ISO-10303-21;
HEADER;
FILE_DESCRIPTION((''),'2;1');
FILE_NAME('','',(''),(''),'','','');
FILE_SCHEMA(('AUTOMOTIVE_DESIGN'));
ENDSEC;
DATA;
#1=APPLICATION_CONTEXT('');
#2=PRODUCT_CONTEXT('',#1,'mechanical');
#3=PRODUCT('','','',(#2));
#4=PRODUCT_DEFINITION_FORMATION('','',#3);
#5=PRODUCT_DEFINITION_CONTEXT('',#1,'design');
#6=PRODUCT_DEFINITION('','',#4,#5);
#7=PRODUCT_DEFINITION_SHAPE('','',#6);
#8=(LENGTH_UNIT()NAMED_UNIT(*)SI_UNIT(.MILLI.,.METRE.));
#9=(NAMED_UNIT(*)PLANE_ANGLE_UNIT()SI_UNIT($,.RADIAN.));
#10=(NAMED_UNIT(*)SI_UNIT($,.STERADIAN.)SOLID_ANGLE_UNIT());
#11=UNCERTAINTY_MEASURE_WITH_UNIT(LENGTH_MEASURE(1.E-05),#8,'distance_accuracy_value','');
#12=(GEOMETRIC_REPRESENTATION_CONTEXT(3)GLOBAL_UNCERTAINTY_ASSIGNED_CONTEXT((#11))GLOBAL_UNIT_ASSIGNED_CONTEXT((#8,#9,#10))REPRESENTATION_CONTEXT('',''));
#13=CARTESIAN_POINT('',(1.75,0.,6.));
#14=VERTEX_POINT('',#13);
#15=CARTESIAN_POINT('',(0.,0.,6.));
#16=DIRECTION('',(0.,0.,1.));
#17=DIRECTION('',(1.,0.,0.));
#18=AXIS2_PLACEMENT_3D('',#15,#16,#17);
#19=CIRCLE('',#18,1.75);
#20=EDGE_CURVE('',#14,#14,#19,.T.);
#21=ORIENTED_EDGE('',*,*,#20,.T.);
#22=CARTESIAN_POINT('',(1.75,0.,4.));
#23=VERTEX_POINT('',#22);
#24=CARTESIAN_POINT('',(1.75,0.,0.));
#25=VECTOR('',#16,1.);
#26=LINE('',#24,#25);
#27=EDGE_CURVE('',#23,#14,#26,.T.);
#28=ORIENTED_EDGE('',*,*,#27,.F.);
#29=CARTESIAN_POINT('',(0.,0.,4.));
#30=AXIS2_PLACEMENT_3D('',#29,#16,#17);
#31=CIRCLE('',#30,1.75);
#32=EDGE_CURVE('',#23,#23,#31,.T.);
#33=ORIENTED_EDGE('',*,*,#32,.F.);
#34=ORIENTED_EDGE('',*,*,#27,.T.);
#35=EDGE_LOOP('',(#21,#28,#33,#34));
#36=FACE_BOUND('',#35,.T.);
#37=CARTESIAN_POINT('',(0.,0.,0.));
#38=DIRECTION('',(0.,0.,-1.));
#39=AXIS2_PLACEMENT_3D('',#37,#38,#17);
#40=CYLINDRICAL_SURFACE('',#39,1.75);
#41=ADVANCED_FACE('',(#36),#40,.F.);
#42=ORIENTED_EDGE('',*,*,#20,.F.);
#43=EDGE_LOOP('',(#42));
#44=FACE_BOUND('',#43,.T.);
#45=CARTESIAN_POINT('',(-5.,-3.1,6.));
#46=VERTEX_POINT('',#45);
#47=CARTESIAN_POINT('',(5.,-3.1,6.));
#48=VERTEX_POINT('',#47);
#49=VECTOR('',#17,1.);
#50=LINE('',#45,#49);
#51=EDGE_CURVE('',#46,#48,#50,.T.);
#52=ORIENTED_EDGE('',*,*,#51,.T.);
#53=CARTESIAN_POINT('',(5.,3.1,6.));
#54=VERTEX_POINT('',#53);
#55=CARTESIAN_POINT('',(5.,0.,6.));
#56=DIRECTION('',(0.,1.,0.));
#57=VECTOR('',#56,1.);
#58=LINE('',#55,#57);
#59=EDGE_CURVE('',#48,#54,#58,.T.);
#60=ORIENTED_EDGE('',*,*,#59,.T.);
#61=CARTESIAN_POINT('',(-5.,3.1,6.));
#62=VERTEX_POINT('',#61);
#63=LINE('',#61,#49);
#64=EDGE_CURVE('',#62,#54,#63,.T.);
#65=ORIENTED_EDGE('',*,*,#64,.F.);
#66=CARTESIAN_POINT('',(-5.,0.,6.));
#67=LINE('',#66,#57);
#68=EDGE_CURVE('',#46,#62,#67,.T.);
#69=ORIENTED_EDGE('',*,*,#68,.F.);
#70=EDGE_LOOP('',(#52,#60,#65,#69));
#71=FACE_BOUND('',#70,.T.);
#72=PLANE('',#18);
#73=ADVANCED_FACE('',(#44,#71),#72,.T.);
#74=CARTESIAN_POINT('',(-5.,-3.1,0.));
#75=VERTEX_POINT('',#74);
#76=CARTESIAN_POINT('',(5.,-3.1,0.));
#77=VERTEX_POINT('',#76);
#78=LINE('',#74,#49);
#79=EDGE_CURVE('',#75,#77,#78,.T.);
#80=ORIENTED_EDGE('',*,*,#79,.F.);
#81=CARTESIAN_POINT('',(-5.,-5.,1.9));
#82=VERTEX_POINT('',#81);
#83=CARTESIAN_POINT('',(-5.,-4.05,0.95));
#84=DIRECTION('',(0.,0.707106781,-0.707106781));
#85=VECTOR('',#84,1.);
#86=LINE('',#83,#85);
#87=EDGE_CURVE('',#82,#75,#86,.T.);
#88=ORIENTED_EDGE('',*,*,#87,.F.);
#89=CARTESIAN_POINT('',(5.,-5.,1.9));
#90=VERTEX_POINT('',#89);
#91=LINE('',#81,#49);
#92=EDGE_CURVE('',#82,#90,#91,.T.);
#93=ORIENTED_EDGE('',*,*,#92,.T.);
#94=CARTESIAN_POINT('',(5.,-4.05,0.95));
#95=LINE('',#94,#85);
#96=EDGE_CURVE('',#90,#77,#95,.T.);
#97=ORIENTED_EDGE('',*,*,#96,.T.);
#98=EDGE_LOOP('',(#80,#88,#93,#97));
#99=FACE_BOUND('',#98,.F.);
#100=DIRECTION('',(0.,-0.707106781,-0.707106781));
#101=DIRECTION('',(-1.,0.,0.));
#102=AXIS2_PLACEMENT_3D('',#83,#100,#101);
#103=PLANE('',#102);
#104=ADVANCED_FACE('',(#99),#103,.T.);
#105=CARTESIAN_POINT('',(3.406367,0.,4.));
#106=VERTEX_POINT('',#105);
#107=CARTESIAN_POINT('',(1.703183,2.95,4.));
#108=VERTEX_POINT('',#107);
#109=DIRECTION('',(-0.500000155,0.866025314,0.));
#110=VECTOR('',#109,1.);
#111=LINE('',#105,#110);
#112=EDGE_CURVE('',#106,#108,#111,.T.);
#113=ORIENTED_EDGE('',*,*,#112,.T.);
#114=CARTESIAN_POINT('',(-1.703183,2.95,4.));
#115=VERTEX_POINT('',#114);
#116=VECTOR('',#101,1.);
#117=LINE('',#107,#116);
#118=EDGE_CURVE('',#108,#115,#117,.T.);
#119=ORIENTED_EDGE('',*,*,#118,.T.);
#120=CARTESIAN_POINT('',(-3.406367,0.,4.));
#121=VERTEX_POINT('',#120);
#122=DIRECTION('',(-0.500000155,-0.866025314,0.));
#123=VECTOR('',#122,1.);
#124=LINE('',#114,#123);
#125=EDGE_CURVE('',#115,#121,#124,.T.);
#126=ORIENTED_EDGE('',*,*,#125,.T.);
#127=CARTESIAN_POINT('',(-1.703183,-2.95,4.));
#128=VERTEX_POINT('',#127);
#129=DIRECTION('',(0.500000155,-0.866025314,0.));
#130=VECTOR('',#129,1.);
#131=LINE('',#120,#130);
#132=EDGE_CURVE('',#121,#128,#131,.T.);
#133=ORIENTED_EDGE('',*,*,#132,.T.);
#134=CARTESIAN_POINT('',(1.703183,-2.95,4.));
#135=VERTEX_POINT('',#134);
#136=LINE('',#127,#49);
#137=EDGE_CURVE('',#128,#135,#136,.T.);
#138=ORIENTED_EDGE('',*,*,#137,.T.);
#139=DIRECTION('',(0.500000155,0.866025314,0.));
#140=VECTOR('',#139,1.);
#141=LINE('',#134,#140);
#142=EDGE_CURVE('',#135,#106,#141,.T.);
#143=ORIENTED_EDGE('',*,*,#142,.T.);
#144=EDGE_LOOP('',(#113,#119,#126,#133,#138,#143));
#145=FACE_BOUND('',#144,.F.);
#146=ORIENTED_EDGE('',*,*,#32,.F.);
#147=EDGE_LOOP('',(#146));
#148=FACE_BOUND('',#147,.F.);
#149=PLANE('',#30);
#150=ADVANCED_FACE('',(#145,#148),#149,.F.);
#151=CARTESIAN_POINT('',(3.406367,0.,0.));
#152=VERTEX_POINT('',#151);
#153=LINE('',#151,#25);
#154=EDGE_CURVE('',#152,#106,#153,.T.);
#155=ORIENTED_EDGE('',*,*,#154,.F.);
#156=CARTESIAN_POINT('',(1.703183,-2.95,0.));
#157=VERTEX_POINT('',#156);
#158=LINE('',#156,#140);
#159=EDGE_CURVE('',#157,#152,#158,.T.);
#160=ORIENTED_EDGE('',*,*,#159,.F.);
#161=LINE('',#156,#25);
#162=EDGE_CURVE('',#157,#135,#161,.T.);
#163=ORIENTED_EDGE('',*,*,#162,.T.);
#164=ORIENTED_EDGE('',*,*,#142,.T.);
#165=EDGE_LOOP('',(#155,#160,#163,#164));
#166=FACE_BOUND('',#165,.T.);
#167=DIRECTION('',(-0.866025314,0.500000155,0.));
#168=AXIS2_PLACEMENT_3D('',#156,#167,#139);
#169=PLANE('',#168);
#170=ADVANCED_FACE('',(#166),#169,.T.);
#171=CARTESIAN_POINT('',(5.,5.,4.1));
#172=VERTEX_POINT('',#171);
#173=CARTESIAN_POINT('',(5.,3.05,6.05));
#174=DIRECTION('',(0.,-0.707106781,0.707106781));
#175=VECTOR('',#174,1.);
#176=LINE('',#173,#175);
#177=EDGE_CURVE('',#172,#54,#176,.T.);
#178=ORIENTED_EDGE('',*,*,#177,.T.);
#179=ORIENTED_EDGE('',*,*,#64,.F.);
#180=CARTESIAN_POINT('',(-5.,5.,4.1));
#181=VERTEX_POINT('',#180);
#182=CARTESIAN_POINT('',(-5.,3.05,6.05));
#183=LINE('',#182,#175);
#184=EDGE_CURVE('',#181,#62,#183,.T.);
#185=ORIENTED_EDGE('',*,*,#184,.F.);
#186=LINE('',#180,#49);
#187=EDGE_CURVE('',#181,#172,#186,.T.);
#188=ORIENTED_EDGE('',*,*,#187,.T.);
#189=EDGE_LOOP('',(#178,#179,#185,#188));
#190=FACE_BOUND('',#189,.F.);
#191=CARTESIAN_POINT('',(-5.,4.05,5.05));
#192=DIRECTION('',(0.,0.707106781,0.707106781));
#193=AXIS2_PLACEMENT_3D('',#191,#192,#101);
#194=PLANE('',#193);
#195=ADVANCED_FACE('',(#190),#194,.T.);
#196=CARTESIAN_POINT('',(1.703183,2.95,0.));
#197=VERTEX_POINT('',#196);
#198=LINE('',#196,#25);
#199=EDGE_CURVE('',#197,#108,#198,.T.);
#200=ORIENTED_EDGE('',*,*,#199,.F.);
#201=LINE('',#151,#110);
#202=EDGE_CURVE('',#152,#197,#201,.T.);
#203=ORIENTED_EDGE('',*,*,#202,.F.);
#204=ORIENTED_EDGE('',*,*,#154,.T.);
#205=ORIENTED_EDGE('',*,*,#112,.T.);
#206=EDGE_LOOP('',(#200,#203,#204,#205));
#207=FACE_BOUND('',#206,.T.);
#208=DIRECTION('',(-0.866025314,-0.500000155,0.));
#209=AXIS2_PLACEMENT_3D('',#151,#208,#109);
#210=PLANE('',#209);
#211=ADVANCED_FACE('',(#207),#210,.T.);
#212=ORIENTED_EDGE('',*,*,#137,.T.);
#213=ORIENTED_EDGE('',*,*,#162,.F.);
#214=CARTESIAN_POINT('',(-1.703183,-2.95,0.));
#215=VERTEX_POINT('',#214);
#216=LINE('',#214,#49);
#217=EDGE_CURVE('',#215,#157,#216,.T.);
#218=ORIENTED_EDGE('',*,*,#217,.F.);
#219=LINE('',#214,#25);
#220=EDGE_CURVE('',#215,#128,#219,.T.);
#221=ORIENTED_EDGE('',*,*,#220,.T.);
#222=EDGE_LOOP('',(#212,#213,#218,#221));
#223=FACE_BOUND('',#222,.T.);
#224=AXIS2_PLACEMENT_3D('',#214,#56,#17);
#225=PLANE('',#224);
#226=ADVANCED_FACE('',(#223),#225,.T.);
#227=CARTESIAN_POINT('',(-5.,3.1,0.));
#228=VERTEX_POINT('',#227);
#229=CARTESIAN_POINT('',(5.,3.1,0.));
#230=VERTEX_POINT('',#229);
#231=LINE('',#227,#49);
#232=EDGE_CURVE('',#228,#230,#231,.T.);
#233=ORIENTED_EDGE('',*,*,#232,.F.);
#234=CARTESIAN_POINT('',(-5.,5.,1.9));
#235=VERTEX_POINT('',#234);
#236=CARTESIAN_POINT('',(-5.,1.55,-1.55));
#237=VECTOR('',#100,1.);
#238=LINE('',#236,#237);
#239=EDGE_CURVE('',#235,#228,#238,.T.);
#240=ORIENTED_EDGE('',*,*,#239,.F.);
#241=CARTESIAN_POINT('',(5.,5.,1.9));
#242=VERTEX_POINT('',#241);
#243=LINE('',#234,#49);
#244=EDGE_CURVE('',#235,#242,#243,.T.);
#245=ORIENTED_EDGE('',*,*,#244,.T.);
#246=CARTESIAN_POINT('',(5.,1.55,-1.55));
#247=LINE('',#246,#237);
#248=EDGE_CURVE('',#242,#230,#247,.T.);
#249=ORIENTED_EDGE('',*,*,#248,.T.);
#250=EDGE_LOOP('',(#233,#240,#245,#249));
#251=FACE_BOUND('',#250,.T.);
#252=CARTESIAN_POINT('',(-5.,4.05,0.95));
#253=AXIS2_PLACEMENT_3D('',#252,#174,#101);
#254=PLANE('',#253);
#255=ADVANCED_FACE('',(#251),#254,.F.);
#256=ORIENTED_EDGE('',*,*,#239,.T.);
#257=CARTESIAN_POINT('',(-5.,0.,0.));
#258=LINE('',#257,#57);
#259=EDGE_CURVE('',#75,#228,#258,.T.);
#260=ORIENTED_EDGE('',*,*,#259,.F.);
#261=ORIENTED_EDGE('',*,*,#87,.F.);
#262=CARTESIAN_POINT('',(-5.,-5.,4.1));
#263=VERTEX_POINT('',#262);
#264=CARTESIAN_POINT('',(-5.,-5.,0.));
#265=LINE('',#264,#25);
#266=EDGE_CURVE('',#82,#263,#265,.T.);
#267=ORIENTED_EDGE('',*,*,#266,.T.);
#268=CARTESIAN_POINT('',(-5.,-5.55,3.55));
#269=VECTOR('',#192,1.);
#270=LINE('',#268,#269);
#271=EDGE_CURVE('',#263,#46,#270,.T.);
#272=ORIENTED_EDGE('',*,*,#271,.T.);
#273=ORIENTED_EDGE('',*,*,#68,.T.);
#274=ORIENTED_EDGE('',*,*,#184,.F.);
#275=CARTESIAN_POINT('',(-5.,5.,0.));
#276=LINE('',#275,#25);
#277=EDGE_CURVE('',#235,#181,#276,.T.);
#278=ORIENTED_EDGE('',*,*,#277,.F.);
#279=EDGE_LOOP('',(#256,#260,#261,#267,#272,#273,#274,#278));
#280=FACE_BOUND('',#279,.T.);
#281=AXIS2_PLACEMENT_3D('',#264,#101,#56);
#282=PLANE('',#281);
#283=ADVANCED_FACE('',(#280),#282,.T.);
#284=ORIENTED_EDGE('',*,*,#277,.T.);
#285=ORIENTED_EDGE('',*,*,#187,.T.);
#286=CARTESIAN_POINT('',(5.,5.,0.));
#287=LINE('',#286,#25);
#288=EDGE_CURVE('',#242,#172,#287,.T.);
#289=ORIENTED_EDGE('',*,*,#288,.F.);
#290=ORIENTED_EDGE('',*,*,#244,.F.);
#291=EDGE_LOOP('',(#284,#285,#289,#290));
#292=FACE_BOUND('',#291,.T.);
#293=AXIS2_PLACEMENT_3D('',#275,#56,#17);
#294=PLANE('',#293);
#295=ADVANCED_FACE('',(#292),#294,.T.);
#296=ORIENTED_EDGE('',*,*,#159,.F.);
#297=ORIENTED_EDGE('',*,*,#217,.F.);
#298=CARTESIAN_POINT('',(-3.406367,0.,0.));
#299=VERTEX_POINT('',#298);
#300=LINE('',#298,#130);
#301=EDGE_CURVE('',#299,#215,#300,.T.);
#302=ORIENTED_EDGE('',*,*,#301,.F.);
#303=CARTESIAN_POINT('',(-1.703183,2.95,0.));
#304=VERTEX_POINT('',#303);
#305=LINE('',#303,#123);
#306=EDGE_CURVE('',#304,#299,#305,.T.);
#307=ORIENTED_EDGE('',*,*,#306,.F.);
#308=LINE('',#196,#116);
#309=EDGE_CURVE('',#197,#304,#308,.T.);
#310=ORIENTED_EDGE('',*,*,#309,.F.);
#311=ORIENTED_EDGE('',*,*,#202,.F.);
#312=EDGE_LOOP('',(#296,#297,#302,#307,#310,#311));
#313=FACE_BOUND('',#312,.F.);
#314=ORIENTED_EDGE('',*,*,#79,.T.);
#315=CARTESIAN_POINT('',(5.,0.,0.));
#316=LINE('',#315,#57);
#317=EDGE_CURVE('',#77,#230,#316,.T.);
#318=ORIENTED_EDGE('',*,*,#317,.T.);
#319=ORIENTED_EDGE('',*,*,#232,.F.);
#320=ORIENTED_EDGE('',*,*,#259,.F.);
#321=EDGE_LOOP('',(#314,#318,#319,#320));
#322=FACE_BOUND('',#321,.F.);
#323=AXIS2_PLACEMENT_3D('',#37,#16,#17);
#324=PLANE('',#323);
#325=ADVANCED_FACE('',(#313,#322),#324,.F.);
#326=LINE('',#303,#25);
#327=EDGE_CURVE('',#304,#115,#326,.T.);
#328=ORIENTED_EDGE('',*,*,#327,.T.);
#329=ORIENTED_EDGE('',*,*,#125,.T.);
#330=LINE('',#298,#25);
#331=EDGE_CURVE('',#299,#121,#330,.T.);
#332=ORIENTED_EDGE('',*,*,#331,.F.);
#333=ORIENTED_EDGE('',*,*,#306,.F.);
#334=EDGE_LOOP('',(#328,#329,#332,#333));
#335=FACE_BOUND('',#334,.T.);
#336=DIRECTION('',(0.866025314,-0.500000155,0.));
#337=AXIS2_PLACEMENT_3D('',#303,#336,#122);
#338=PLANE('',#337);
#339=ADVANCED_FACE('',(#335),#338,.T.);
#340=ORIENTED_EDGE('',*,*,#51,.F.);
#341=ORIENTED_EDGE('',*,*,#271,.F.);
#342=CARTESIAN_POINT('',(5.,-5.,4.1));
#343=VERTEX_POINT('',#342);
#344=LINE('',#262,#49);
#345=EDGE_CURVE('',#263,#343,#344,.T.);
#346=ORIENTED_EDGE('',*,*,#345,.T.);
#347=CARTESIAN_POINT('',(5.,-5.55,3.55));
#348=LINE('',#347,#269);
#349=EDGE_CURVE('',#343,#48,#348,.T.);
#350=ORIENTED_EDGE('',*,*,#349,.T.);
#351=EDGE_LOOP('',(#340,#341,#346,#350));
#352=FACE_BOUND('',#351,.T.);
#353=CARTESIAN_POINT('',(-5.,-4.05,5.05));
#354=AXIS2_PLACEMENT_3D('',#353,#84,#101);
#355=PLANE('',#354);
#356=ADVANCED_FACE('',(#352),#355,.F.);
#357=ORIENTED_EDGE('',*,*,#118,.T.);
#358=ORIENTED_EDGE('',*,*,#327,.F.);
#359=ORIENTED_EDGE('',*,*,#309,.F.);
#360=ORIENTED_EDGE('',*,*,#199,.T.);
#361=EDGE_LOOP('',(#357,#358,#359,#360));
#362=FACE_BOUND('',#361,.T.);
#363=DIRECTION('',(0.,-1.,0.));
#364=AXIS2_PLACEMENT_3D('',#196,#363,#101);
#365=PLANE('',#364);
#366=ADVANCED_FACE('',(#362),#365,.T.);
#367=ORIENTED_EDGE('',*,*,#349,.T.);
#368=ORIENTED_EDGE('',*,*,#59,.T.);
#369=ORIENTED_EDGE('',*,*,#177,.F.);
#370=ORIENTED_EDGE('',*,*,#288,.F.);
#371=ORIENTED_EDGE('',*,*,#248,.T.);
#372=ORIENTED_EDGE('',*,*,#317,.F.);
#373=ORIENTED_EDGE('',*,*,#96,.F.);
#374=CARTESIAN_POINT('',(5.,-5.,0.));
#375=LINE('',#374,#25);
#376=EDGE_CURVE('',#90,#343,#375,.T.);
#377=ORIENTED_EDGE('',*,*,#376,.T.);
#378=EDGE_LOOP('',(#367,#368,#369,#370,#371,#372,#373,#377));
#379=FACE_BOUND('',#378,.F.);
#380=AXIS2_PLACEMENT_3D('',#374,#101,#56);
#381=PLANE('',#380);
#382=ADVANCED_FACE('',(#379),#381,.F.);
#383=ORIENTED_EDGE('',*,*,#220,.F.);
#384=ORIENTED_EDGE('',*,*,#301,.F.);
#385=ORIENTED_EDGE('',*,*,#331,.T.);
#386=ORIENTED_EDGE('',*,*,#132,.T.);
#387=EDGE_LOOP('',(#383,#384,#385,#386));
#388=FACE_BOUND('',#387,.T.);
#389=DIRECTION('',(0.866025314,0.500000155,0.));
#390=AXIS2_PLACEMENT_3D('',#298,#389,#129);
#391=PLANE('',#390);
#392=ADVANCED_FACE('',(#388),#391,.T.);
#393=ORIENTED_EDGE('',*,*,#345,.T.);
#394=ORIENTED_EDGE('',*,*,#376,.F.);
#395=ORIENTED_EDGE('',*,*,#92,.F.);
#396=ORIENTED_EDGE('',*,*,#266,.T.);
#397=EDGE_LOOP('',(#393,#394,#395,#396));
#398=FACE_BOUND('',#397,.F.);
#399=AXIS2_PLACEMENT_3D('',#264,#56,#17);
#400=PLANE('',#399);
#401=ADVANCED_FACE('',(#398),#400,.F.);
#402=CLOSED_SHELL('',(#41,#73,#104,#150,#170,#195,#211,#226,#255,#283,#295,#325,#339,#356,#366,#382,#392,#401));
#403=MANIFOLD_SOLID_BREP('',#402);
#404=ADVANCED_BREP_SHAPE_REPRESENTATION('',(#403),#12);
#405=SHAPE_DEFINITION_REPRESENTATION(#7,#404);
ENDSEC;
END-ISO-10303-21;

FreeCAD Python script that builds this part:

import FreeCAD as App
import Part
import Sketcher

V = App.Vector
Q = App.Units.Quantity


def edges_at(feature, points):
    """Names of the edges that pass closest to the given points."""
    edges = feature.Shape.Edges
    near = lambda p: min(range(len(edges)), key=lambda i: edges[i].distToShape(Part.Vertex(*p))[0])
    return sorted({f"Edge{near(p) + 1}" for p in points})

doc = App.newDocument("Part")
body = doc.addObject("PartDesign::Body", "Body")

# Sketch on XY plane
sketch1 = body.newObject("Sketcher::SketchObject", "Sketch")
sketch1.AttachmentSupport = (doc.getObject("XY_Plane"), [""])
sketch1.MapMode = "FlatFace"
sketch1.addGeometry(Part.LineSegment(V(-5, 5, 0), V(-5, -5, 0)), False)
sketch1.addGeometry(Part.LineSegment(V(-5, -5, 0), V(5, -5, 0)), False)
sketch1.addGeometry(Part.LineSegment(V(5, -5, 0), V(5, 5, 0)), False)
sketch1.addGeometry(Part.LineSegment(V(5, 5, 0), V(-5, 5, 0)), False)
sketch1.addGeometry(Part.Circle(V(0, 0, 0), V(0, 0, 1), 1.8), False)
sketch1.addConstraint(Sketcher.Constraint("Coincident", 0, 2, 1, 1))
sketch1.addConstraint(Sketcher.Constraint("Coincident", 1, 2, 2, 1))
sketch1.addConstraint(Sketcher.Constraint("Coincident", 2, 2, 3, 1))
sketch1.addConstraint(Sketcher.Constraint("Coincident", 3, 2, 0, 1))
sketch1.addConstraint(Sketcher.Constraint("Vertical", 0))
sketch1.addConstraint(Sketcher.Constraint("Horizontal", 1))
sketch1.addConstraint(Sketcher.Constraint("Vertical", 2))
sketch1.addConstraint(Sketcher.Constraint("Horizontal", 3))
sketch1.addConstraint(Sketcher.Constraint("Coincident", 4, 3, -1, 1))
sketch1.addConstraint(Sketcher.Constraint("Symmetric", 0, 2, 2, 2, -1, 1))
sketch1.addConstraint(Sketcher.Constraint("Equal", 3, 0))
sketch1.addConstraint(Sketcher.Constraint("Diameter", 4, 3.5))
sketch1.addConstraint(Sketcher.Constraint("DistanceX", 1, 1, 1, 2, 10.0))
pad1 = body.newObject("PartDesign::Pad", "Pad")
pad1.Profile = sketch1
pad1.Length = 6

# Sketch on XY plane
sketch2 = body.newObject("Sketcher::SketchObject", "Sketch001")
sketch2.AttachmentSupport = (doc.getObject("XY_Plane"), [""])
sketch2.MapMode = "FlatFace"
sketch2.addGeometry(Part.LineSegment(V(1.7, 3, 0), V(-1.7, 3, 0)), False)
sketch2.addGeometry(Part.LineSegment(V(-1.7, 3, 0), V(-3.4, 0, 0)), False)
sketch2.addGeometry(Part.LineSegment(V(-3.4, 0, 0), V(-1.7, -3, 0)), False)
sketch2.addGeometry(Part.LineSegment(V(-1.7, -3, 0), V(1.7, -3, 0)), False)
sketch2.addGeometry(Part.LineSegment(V(1.7, -3, 0), V(3.4, 0, 0)), False)
sketch2.addGeometry(Part.LineSegment(V(3.4, 0, 0), V(1.7, 3, 0)), False)
sketch2.addGeometry(Part.Circle(V(0, 0, 0), V(0, 0, 1), 1.8), False)
sketch2.addConstraint(Sketcher.Constraint("Coincident", 0, 2, 1, 1))
sketch2.addConstraint(Sketcher.Constraint("Coincident", 1, 2, 2, 1))
sketch2.addConstraint(Sketcher.Constraint("Coincident", 2, 2, 3, 1))
sketch2.addConstraint(Sketcher.Constraint("Coincident", 3, 2, 4, 1))
sketch2.addConstraint(Sketcher.Constraint("Coincident", 4, 2, 5, 1))
sketch2.addConstraint(Sketcher.Constraint("Coincident", 5, 2, 0, 1))
sketch2.addConstraint(Sketcher.Constraint("Horizontal", 0))
sketch2.addConstraint(Sketcher.Constraint("Horizontal", 3))
sketch2.addConstraint(Sketcher.Constraint("Coincident", 6, 3, -1, 1))
sketch2.addConstraint(Sketcher.Constraint("Symmetric", 0, 2, 3, 2, -1, 1))
sketch2.addConstraint(Sketcher.Constraint("Symmetric", 1, 2, 4, 2, -1, 1))
sketch2.addConstraint(Sketcher.Constraint("PointOnObject", 1, 2, -1))
sketch2.addConstraint(Sketcher.Constraint("Parallel", 2, 5))
sketch2.addConstraint(Sketcher.Constraint("Vertical", 0, 2, 2, 2))
sketch2.addConstraint(Sketcher.Constraint("Diameter", 6, 3.5))
sketch2.addConstraint(Sketcher.Constraint("Angle", 1, Q("-120.00001 deg")))
sketch2.addConstraint(Sketcher.Constraint("DistanceY", 2, 2, 0, 2, 5.9))
sketch2.addConstraint(Sketcher.Constraint("DistanceX", 0, 2, 0, 1, 3.406366))
pocket1 = body.newObject("PartDesign::Pocket", "Pocket")
pocket1.Profile = sketch2
pocket1.Length = 4
pocket1.Reversed = True
doc.recompute()

chamfer = body.newObject("PartDesign::Chamfer", "Chamfer")
chamfer.Base = (pocket1, edges_at(pocket1, [
    (0, 5, 0),
    (0, -5, 0),
    (0, 5, 6),
    (0, -5, 6),
]))
chamfer.Size = 1.9

doc.recompute()
